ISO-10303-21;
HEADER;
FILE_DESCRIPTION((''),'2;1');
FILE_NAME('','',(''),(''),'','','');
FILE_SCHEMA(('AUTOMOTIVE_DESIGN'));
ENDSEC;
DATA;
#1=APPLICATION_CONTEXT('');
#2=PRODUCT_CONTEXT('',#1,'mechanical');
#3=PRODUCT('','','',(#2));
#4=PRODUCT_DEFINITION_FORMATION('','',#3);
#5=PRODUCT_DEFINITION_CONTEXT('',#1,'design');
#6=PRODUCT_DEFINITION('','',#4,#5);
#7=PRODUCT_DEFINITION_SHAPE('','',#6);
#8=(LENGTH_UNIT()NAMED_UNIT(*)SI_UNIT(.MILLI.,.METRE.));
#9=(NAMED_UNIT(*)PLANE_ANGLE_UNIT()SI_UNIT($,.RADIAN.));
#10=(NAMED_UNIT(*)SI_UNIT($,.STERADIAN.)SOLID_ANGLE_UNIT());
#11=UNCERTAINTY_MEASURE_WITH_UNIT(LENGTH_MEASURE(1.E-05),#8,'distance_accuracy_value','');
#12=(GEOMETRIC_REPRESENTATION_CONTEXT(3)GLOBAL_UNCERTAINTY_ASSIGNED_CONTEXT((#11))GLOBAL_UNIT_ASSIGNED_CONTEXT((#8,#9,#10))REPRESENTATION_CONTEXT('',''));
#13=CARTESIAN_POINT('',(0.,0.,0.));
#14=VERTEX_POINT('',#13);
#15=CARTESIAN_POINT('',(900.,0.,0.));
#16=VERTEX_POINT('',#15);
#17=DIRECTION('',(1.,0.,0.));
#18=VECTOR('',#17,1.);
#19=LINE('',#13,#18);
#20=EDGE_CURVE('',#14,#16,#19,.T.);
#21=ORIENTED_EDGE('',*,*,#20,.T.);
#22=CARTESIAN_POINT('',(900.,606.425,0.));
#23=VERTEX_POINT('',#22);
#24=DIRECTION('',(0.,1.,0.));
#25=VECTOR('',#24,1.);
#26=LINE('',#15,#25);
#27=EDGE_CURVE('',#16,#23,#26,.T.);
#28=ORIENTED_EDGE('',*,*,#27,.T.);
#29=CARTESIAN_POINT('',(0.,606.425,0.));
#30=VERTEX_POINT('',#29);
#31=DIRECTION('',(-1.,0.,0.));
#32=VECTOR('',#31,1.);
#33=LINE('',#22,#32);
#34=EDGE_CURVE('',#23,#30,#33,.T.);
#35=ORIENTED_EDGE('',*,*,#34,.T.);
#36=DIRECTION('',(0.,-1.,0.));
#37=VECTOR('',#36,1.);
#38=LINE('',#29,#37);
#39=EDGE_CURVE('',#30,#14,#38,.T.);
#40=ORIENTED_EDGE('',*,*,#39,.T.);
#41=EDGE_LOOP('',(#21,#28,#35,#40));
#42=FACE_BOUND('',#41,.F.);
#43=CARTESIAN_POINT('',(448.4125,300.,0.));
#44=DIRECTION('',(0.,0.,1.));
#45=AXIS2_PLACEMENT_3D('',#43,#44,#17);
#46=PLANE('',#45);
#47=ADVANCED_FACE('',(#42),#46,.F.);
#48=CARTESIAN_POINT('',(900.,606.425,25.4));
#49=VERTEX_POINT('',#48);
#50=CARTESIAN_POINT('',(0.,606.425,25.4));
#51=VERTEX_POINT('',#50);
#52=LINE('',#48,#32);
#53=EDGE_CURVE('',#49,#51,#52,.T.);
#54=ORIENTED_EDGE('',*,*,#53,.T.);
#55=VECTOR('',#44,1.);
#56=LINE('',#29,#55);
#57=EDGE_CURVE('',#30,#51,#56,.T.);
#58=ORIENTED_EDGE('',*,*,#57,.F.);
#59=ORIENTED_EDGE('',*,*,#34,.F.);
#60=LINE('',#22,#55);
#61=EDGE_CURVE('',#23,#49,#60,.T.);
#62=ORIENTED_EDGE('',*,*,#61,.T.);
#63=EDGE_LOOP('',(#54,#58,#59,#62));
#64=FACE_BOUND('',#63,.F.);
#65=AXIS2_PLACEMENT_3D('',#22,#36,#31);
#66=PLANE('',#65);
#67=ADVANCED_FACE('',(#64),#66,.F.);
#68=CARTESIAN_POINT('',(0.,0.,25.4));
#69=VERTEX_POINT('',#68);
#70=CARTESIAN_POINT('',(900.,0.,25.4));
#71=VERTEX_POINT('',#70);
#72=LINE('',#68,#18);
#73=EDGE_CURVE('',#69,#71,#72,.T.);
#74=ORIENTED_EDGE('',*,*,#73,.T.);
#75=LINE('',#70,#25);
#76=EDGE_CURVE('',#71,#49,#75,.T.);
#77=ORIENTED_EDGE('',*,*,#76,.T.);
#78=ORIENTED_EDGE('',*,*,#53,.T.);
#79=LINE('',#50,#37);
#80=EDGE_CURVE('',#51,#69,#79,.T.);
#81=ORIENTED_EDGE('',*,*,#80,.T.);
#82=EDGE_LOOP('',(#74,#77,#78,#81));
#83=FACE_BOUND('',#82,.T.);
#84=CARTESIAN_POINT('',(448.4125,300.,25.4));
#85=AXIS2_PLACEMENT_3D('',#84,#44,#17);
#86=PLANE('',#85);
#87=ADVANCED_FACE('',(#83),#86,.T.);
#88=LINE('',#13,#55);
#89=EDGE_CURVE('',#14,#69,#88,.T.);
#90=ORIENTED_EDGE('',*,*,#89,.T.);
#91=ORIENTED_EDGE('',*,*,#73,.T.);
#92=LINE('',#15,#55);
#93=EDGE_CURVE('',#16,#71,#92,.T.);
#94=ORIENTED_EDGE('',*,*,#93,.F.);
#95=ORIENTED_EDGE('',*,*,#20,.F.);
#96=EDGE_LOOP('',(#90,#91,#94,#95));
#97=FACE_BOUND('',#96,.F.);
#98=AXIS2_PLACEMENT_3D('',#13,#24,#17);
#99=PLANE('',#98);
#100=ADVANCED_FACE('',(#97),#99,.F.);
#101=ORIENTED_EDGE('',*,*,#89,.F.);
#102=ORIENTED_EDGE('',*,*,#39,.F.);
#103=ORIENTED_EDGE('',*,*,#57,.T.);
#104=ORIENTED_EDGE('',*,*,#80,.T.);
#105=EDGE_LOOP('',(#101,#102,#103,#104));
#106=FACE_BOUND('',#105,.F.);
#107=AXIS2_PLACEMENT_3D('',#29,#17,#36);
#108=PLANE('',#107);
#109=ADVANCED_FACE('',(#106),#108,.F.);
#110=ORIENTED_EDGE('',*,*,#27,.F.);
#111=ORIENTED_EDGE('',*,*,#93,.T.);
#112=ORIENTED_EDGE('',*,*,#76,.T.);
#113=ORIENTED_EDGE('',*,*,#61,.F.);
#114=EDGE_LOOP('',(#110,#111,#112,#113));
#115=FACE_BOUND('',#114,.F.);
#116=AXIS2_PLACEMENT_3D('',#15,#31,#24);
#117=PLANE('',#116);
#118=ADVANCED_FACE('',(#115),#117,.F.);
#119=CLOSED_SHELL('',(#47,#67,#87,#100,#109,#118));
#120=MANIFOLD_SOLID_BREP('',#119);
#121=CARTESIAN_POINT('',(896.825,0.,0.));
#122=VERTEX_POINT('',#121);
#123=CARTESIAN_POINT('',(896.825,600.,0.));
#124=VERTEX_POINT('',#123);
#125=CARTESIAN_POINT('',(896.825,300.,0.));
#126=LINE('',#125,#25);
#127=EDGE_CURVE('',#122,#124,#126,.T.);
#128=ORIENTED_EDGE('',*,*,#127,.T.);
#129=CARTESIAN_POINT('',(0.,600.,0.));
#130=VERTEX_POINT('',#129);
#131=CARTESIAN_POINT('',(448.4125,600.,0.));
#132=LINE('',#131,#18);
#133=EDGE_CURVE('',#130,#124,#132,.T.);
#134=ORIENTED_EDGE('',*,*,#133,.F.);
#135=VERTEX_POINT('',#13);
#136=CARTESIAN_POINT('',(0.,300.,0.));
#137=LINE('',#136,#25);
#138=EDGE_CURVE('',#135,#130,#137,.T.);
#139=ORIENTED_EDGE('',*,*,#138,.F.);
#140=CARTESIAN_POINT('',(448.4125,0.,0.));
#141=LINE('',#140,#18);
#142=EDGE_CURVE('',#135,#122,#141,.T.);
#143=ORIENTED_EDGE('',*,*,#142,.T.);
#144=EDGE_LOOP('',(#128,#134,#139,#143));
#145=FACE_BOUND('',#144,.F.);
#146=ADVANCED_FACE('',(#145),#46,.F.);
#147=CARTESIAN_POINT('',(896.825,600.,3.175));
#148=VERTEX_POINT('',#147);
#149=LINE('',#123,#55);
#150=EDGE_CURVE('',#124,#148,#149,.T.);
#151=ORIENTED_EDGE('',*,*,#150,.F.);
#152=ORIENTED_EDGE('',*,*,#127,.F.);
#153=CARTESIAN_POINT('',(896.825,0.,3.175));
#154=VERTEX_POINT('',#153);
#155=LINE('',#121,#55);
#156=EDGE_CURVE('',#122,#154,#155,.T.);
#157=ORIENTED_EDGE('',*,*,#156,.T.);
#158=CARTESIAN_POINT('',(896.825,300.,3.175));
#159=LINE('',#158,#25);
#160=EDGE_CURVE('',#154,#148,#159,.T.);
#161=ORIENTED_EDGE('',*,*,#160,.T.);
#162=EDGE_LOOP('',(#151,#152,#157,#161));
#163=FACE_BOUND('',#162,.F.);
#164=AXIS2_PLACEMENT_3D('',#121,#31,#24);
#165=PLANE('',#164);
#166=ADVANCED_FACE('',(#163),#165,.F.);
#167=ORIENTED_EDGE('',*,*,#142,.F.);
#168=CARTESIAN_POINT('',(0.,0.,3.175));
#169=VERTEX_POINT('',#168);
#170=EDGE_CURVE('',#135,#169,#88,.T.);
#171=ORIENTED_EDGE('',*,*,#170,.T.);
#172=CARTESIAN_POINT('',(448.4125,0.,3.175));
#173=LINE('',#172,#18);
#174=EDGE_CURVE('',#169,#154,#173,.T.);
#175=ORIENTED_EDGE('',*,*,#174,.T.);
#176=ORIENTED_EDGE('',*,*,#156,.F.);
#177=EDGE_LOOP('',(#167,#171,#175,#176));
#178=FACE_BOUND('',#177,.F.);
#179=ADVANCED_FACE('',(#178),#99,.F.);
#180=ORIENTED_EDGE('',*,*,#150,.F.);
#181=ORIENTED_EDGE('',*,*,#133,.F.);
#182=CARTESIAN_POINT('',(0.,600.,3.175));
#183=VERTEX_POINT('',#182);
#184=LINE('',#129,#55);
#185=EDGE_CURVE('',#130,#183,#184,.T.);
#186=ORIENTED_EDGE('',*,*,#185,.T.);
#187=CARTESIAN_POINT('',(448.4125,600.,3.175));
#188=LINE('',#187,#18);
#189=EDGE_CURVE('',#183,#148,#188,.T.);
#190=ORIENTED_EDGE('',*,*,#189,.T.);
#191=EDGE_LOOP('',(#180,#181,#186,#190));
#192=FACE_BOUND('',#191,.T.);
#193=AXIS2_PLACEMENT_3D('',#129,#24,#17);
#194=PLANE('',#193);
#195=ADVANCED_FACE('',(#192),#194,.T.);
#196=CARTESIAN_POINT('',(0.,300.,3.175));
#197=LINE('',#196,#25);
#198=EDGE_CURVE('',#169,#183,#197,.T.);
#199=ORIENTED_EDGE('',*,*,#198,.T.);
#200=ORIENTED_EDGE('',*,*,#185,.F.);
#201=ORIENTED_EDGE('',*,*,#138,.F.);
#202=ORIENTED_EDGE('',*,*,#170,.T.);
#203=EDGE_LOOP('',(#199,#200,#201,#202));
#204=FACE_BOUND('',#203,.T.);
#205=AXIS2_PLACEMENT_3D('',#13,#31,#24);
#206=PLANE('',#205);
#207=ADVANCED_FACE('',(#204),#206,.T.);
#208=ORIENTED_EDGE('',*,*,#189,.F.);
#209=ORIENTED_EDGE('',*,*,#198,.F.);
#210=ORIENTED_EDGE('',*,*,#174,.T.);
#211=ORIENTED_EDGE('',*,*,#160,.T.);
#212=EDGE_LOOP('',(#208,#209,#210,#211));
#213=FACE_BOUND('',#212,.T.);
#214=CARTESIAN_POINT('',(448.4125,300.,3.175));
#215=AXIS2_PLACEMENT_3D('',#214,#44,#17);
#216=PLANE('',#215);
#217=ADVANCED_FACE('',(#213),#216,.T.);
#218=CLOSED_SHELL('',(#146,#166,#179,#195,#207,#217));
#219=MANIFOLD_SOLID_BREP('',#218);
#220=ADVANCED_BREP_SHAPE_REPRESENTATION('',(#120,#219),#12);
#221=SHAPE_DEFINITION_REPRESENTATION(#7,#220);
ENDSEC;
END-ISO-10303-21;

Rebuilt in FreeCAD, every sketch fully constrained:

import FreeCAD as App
import Part
import Sketcher

V = App.Vector
Q = App.Units.Quantity


def add_polygon(sketch, points):
    """Adds a closed chain of lines whose ends are joined by coincident constraints."""
    first, n = sketch.GeometryCount, len(points)
    for a, b in zip(points, points[1:] + points[:1]):
        sketch.addGeometry(Part.LineSegment(App.Vector(*a, 0), App.Vector(*b, 0)), False)
    for i in range(n):
        sketch.addConstraint(Sketcher.Constraint("Coincident", first + i, 2, first + (i + 1) % n, 1))

doc = App.newDocument("Part")
body = doc.addObject("PartDesign::Body", "Body")

# Sketch on XY plane
sketch1 = body.newObject("Sketcher::SketchObject", "Sketch")
sketch1.AttachmentSupport = (doc.getObject("XY_Plane"), [""])
sketch1.MapMode = "FlatFace"
add_polygon(sketch1, [(0, 600), (0, 0), (897, 0), (897, 600)])  # lines 0-3
sketch1.addConstraint([
    Sketcher.Constraint("Vertical", 0),
    Sketcher.Constraint("Horizontal", 1),
    Sketcher.Constraint("Vertical", 2),
    Sketcher.Constraint("Horizontal", 3),
    Sketcher.Constraint("Coincident", 0, 2, -1, 1),
    Sketcher.Constraint("DistanceX", 1, 1, 1, 2, Q("896.825 mm")),
    Sketcher.Constraint("DistanceY", 0, 2, 0, 1, Q("600 mm")),
])
pad1 = body.newObject("PartDesign::Pad", "Pad")
pad1.Profile = sketch1
pad1.Length = Q("0.125 in")
body2 = doc.addObject("PartDesign::Body", "Body001")

# Sketch on XY plane
sketch2 = body2.newObject("Sketcher::SketchObject", "Sketch001")
sketch2.AttachmentSupport = (doc.getObject("XY_Plane001"), [""])
sketch2.MapMode = "FlatFace"
add_polygon(sketch2, [(0, 0), (900, 0), (900, 606), (0, 606)])  # lines 0-3
sketch2.addConstraint([
    Sketcher.Constraint("Horizontal", 0),
    Sketcher.Constraint("Vertical", 1),
    Sketcher.Constraint("Horizontal", 2),
    Sketcher.Constraint("Vertical", 3),
    Sketcher.Constraint("Coincident", 3, 2, -1, 1),
    Sketcher.Constraint("DistanceY", 1, 1, 1, 2, Q("23.875 in")),
    Sketcher.Constraint("DistanceX", 0, 1, 0, 2, Q("900 mm")),
])
pad2 = body2.newObject("PartDesign::Pad", "Pad001")
pad2.Profile = sketch2
pad2.Length = Q("1 in")

doc.recompute()
